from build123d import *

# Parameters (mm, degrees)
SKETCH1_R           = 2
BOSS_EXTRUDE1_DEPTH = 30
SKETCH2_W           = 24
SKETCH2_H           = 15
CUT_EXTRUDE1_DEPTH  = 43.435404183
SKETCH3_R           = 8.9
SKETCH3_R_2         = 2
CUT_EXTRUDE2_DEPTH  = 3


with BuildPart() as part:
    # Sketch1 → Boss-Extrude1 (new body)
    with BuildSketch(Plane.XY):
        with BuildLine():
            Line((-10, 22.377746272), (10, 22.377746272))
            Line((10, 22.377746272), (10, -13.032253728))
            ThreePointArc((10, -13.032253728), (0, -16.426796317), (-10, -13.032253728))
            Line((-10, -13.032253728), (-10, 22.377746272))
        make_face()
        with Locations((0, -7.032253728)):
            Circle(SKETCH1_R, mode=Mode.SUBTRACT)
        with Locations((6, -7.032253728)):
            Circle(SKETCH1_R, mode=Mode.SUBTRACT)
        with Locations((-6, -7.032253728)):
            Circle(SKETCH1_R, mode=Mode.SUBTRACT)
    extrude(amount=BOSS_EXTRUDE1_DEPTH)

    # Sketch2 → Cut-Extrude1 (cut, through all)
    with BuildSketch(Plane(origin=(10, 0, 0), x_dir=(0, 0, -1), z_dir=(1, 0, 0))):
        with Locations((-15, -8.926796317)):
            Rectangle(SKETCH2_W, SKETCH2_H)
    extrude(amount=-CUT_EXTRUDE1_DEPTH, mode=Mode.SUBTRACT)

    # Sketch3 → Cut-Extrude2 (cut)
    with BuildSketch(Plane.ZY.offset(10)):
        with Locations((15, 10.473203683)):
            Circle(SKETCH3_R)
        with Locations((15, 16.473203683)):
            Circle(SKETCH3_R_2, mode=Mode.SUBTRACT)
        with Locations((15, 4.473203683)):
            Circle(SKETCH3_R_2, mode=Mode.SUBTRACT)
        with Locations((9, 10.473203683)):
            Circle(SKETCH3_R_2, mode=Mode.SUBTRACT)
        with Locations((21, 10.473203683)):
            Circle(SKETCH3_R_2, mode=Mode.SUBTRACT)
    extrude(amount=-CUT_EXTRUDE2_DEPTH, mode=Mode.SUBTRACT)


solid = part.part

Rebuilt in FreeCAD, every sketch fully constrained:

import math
import FreeCAD as App
import Part
import Sketcher

V = App.Vector
Q = App.Units.Quantity

doc = App.newDocument("Part")
body = doc.addObject("PartDesign::Body", "Body")

# Sketch on XY plane
sketch1 = body.newObject("Sketcher::SketchObject", "Sketch")
sketch1.AttachmentSupport = (doc.getObject("XY_Plane"), [""])
sketch1.MapMode = "FlatFace"
sketch1.addGeometry([
    Part.LineSegment(V(10, 22.4, 0), V(-10, 22.4, 0)),  # 0
    Part.LineSegment(V(-10, 22.4, 0), V(-10, -13, 0)),  # 1
    Part.ArcOfCircle(Part.Circle(V(0, 0, 0), V(0, 0, 1), 16.4), math.radians(-128), math.radians(-52)),  # 2
    Part.LineSegment(V(10, -13, 0), V(10, 22.4, 0)),  # 3
    Part.Circle(V(6, -7, 0), V(0, 0, 1), 2),  # 4
    Part.Circle(V(0, -7, 0), V(0, 0, 1), 2),  # 5
    Part.Circle(V(-6, -7, 0), V(0, 0, 1), 2),  # 6
], False)
sketch1.addConstraint([
    Sketcher.Constraint("Coincident", 0, 2, 1, 1),
    Sketcher.Constraint("Coincident", 1, 2, 2, 1),
    Sketcher.Constraint("Coincident", 2, 2, 3, 1),
    Sketcher.Constraint("Coincident", 3, 2, 0, 1),
    Sketcher.Constraint("Horizontal", 0),
    Sketcher.Constraint("Vertical", 1),
    Sketcher.Constraint("Vertical", 3),
    Sketcher.Constraint("Coincident", 2, 3, -1, 1),
    Sketcher.Constraint("Equal", 4, 5),
    Sketcher.Constraint("Equal", 5, 6),
    Sketcher.Constraint("Symmetric", 4, 3, 6, 3, -2),
    Sketcher.Constraint("PointOnObject", 5, 3, -2),
    Sketcher.Constraint("Horizontal", 4, 3, 5, 3),
    Sketcher.Constraint("Horizontal", 1, 2, 2, 2),
    Sketcher.Constraint("Diameter", 4, Q("4 mm")),
    Sketcher.Constraint("DistanceX", 0, 2, 0, 1, Q("20 mm")),
    Sketcher.Constraint("DistanceX", -1, 1, 4, 3, Q("6 mm")),
    Sketcher.Constraint("DistanceY", 1, 2, 6, 3, Q("6 mm")),
    Sketcher.Constraint("DistanceY", 1, 2, 1, 1, Q("35.41 mm")),
    Sketcher.Constraint("Radius", 2, Q("16.426796 mm")),
])
pad1 = body.newObject("PartDesign::Pad", "Pad")
pad1.Profile = sketch1
pad1.Length = 30

# Sketch on YZ plane
sketch2 = body.newObject("Sketcher::SketchObject", "Sketch001")
sketch2.AttachmentSupport = (doc.getObject("YZ_Plane"), [""])
sketch2.MapMode = "FlatFace"
sketch2.AttachmentOffset = App.Placement(V(0, 0, 10), App.Rotation())
sketch2.addGeometry([
    Part.LineSegment(V(-1, 27, 0), V(-16, 27, 0)),
    Part.LineSegment(V(-16, 27, 0), V(-16, 3, 0)),
    Part.LineSegment(V(-16, 3, 0), V(-1, 3, 0)),
    Part.LineSegment(V(-1, 3, 0), V(-1, 27, 0)),
], False)
sketch2.addConstraint([
    Sketcher.Constraint("Coincident", 0, 2, 1, 1),
    Sketcher.Constraint("Coincident", 1, 2, 2, 1),
    Sketcher.Constraint("Coincident", 2, 2, 3, 1),
    Sketcher.Constraint("Coincident", 3, 2, 0, 1),
    Sketcher.Constraint("Horizontal", 0),
    Sketcher.Constraint("Vertical", 1),
    Sketcher.Constraint("Horizontal", 2),
    Sketcher.Constraint("Vertical", 3),
    Sketcher.Constraint("DistanceX", 0, 2, 0, 1, Q("15 mm")),
    Sketcher.Constraint("DistanceY", 1, 2, 1, 1, Q("24 mm")),
    Sketcher.Constraint("DistanceY", -1, 1, 0, 2, Q("27 mm")),
    Sketcher.Constraint("DistanceX", 0, 2, -1, 1, Q("16.426796 mm")),
])
pocket1 = body.newObject("PartDesign::Pocket", "Pocket")
pocket1.Profile = sketch2
pocket1.Type = "ThroughAll"

# Sketch on YZ plane
sketch3 = body.newObject("Sketcher::SketchObject", "Sketch002")
sketch3.AttachmentSupport = (doc.getObject("YZ_Plane"), [""])
sketch3.MapMode = "FlatFace"
sketch3.AttachmentOffset = App.Placement(V(0, 0, -10), App.Rotation())
sketch3.addGeometry([
    Part.Circle(V(10.5, 15, 0), V(0, 0, 1), 8.9),  # 0
    Part.Circle(V(10.5, 9, 0), V(0, 0, 1), 2),  # 1
    Part.Circle(V(4.5, 15, 0), V(0, 0, 1), 2),  # 2
    Part.Circle(V(10.5, 21, 0), V(0, 0, 1), 2),  # 3
    Part.Circle(V(16.5, 15, 0), V(0, 0, 1), 2),  # 4
], False)
sketch3.addConstraint([
    Sketcher.Constraint("Equal", 1, 2),
    Sketcher.Constraint("Equal", 2, 3),
    Sketcher.Constraint("Equal", 3, 4),
    Sketcher.Constraint("Horizontal", 0, 3, 2, 3),
    Sketcher.Constraint("Horizontal", 2, 3, 4, 3),
    Sketcher.Constraint("Vertical", 0, 3, 1, 3),
    Sketcher.Constraint("Vertical", 1, 3, 3, 3),
    Sketcher.Constraint("Diameter", 1, Q("4 mm")),
    Sketcher.Constraint("Diameter", 0, Q("17.8 mm")),
    Sketcher.Constraint("DistanceY", -1, 1, 0, 3, Q("15 mm")),
    Sketcher.Constraint("DistanceY", -1, 1, 1, 3, Q("9 mm")),
    Sketcher.Constraint("DistanceY", -1, 1, 3, 3, Q("21 mm")),
    Sketcher.Constraint("DistanceX", 2, 3, 0, 3, Q("6 mm")),
    Sketcher.Constraint("DistanceX", 0, 3, 4, 3, Q("6 mm")),
    Sketcher.Constraint("DistanceX", -1, 1, 0, 3, Q("10.473204 mm")),
])
pocket2 = body.newObject("PartDesign::Pocket", "Pocket001")
pocket2.Profile = sketch3
pocket2.Length = 3
pocket2.Reversed = True

doc.recompute()
